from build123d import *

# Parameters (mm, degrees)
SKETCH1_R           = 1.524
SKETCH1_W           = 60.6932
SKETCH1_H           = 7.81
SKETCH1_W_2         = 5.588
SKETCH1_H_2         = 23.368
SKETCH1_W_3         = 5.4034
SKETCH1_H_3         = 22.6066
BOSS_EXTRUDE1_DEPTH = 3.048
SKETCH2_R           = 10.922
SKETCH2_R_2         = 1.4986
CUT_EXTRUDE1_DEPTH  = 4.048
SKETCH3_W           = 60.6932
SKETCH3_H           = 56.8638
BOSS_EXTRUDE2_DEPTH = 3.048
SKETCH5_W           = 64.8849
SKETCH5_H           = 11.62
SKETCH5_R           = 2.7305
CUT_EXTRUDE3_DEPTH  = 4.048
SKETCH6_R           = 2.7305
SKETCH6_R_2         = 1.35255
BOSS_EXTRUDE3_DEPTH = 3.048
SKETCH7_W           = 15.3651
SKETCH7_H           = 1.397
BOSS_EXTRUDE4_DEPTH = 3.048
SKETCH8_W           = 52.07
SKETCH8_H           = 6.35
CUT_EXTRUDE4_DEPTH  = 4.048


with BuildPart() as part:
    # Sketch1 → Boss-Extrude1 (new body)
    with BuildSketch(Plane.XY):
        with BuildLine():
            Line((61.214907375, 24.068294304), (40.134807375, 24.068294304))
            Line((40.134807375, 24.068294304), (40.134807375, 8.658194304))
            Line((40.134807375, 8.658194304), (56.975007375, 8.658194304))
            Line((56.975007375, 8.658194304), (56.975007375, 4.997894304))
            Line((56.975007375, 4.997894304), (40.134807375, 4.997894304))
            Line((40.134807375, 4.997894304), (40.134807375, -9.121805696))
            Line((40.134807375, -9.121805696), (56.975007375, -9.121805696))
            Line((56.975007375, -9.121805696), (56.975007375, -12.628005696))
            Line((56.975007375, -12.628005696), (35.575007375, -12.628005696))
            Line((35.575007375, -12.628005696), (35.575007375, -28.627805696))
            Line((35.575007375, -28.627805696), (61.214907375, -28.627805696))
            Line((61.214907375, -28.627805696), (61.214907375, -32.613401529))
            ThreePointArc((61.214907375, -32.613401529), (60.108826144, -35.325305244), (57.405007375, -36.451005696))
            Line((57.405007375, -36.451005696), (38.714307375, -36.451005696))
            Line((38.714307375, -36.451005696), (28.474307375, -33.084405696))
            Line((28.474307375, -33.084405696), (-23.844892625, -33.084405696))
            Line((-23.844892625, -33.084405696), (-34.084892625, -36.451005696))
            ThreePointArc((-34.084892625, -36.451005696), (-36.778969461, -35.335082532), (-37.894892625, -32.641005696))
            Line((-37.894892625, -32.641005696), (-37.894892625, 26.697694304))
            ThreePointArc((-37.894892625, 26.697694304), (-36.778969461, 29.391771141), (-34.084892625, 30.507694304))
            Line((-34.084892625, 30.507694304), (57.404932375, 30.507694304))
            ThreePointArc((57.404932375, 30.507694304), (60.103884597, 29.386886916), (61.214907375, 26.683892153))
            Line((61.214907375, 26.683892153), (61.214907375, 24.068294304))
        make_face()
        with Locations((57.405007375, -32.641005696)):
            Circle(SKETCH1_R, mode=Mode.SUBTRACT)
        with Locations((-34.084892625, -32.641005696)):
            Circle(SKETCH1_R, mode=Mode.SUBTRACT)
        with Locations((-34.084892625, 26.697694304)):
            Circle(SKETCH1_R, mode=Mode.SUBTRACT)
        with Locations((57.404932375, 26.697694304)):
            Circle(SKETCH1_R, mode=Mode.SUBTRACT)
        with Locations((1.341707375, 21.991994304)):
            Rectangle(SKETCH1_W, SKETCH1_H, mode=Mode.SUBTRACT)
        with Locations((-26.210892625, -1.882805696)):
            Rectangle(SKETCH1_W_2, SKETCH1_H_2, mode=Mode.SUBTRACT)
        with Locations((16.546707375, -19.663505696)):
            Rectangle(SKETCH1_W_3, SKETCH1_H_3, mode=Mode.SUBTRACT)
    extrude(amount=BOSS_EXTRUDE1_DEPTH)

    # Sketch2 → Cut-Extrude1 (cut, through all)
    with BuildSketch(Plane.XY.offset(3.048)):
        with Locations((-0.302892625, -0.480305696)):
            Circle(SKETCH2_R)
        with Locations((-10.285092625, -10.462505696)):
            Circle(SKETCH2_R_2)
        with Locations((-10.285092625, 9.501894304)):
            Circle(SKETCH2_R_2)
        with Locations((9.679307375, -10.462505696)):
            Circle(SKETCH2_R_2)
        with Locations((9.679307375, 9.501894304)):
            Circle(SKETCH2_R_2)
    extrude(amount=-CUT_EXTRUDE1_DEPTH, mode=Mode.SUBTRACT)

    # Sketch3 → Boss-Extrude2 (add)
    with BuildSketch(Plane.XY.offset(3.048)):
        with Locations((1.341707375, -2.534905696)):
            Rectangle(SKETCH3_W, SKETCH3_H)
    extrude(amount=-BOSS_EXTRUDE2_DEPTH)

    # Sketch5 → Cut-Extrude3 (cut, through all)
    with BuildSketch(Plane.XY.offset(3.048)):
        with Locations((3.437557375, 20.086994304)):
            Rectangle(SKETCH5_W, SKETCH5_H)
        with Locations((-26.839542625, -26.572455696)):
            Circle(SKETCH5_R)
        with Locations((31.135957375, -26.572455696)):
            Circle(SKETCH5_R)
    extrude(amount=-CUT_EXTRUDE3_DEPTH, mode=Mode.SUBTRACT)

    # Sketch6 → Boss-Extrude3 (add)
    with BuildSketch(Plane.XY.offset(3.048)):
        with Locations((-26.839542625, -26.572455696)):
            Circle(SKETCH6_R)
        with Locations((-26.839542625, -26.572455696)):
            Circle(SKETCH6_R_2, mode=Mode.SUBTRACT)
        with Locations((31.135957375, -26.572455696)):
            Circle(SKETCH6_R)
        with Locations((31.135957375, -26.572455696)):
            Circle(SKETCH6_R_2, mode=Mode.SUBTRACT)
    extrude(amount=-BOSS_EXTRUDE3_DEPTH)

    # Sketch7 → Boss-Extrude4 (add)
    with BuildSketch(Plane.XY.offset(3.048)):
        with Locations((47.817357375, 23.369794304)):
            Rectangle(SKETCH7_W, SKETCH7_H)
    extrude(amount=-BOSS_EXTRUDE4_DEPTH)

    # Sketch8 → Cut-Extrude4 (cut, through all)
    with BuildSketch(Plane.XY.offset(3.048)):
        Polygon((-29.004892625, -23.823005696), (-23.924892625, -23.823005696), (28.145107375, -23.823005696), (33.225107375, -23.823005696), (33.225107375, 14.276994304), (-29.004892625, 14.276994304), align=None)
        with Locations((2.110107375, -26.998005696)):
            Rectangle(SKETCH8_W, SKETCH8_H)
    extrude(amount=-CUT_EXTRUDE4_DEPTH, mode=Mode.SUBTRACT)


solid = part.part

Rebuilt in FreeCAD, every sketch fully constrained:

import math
import FreeCAD as App
import Part
import Sketcher
from FreeCAD import Vector
Q = App.Units.Quantity

doc = App.newDocument("Part")
body = doc.addObject("PartDesign::Body", "Body")

sketch1 = body.newObject("Sketcher::SketchObject", "Sketch")
sketch1.AttachmentSupport = (doc.getObject("XY_Plane"), [""])
sketch1.MapMode = "FlatFace"
sketch1.addGeometry(Part.LineSegment(Vector(40.134807, 24.068294, 0), Vector(61.214907, 24.068294, 0)), False)
sketch1.addGeometry(Part.LineSegment(Vector(61.214907, 24.068294, 0), Vector(61.214907, 26.683892, 0)), False)
sketch1.addGeometry(Part.ArcOfCircle(Part.Circle(Vector(57.404932, 26.697694, 0), Vector(0, 0, 1), 3.81), math.radians(-0.207561), math.radians(90)), False)
sketch1.addGeometry(Part.LineSegment(Vector(57.404932, 30.507694, 0), Vector(-34.084893, 30.507694, 0)), False)
sketch1.addGeometry(Part.ArcOfCircle(Part.Circle(Vector(-34.084893, 26.697694, 0), Vector(0, 0, 1), 3.81), math.radians(90), math.radians(180)), False)
sketch1.addGeometry(Part.LineSegment(Vector(-37.894893, 26.697694, 0), Vector(-37.894893, -32.641006, 0)), False)
sketch1.addGeometry(Part.ArcOfCircle(Part.Circle(Vector(-34.084893, -32.641006, 0), Vector(0, 0, 1), 3.81), math.radians(-180), math.radians(-90)), False)
sketch1.addGeometry(Part.LineSegment(Vector(-34.084893, -36.451006, 0), Vector(-23.844893, -33.084406, 0)), False)
sketch1.addGeometry(Part.LineSegment(Vector(-23.844893, -33.084406, 0), Vector(28.474307, -33.084406, 0)), False)
sketch1.addGeometry(Part.LineSegment(Vector(28.474307, -33.084406, 0), Vector(38.714307, -36.451006, 0)), False)
sketch1.addGeometry(Part.LineSegment(Vector(38.714307, -36.451006, 0), Vector(57.405007, -36.451006, 0)), False)
sketch1.addGeometry(Part.ArcOfCircle(Part.Circle(Vector(57.405007, -32.641006, 0), Vector(0, 0, 1), 3.81), math.radians(-90), math.radians(0.415122)), False)
sketch1.addGeometry(Part.LineSegment(Vector(61.214907, -32.613402, 0), Vector(61.214907, -28.627806, 0)), False)
sketch1.addGeometry(Part.LineSegment(Vector(61.214907, -28.627806, 0), Vector(35.575007, -28.627806, 0)), False)
sketch1.addGeometry(Part.LineSegment(Vector(35.575007, -28.627806, 0), Vector(35.575007, -12.628006, 0)), False)
sketch1.addGeometry(Part.LineSegment(Vector(35.575007, -12.628006, 0), Vector(56.975007, -12.628006, 0)), False)
sketch1.addGeometry(Part.LineSegment(Vector(56.975007, -12.628006, 0), Vector(56.975007, -9.121806, 0)), False)
sketch1.addGeometry(Part.LineSegment(Vector(56.975007, -9.121806, 0), Vector(40.134807, -9.121806, 0)), False)
sketch1.addGeometry(Part.LineSegment(Vector(40.134807, -9.121806, 0), Vector(40.134807, 4.997894, 0)), False)
sketch1.addGeometry(Part.LineSegment(Vector(40.134807, 4.997894, 0), Vector(56.975007, 4.997894, 0)), False)
sketch1.addGeometry(Part.LineSegment(Vector(56.975007, 4.997894, 0), Vector(56.975007, 8.658194, 0)), False)
sketch1.addGeometry(Part.LineSegment(Vector(56.975007, 8.658194, 0), Vector(40.134807, 8.658194, 0)), False)
sketch1.addGeometry(Part.LineSegment(Vector(40.134807, 8.658194, 0), Vector(40.134807, 24.068294, 0)), False)
sketch1.addGeometry(Part.Circle(Vector(57.405007, -32.641006, 0), Vector(0, 0, 1), 1.524), False)
sketch1.addGeometry(Part.LineSegment(Vector(13.845007, -30.966806, 0), Vector(13.845007, -8.360206, 0)), False)
sketch1.addGeometry(Part.LineSegment(Vector(13.845007, -8.360206, 0), Vector(19.248407, -8.360206, 0)), False)
sketch1.addGeometry(Part.LineSegment(Vector(19.248407, -8.360206, 0), Vector(19.248407, -30.966806, 0)), False)
sketch1.addGeometry(Part.LineSegment(Vector(19.248407, -30.966806, 0), Vector(13.845007, -30.966806, 0)), False)
sketch1.addGeometry(Part.Circle(Vector(-34.084893, -32.641006, 0), Vector(0, 0, 1), 1.524), False)
sketch1.addGeometry(Part.Circle(Vector(57.404932, 26.697694, 0), Vector(0, 0, 1), 1.524), False)
sketch1.addGeometry(Part.LineSegment(Vector(-29.004893, -13.566806, 0), Vector(-29.004893, 9.801194, 0)), False)
sketch1.addGeometry(Part.LineSegment(Vector(-29.004893, 9.801194, 0), Vector(-23.416893, 9.801194, 0)), False)
sketch1.addGeometry(Part.LineSegment(Vector(-23.416893, 9.801194, 0), Vector(-23.416893, -13.566806, 0)), False)
sketch1.addGeometry(Part.LineSegment(Vector(-23.416893, -13.566806, 0), Vector(-29.004893, -13.566806, 0)), False)
sketch1.addGeometry(Part.LineSegment(Vector(-29.004893, 18.086994, 0), Vector(-29.004893, 25.896994, 0)), False)
sketch1.addGeometry(Part.LineSegment(Vector(-29.004893, 25.896994, 0), Vector(31.688307, 25.896994, 0)), False)
sketch1.addGeometry(Part.LineSegment(Vector(31.688307, 25.896994, 0), Vector(31.688307, 18.086994, 0)), False)
sketch1.addGeometry(Part.LineSegment(Vector(31.688307, 18.086994, 0), Vector(-29.004893, 18.086994, 0)), False)
sketch1.addGeometry(Part.Circle(Vector(-34.084893, 26.697694, 0), Vector(0, 0, 1), 1.524), False)
sketch1.addConstraint(Sketcher.Constraint("Coincident", 0, 2, 1, 1))
sketch1.addConstraint(Sketcher.Constraint("Coincident", 1, 2, 2, 1))
sketch1.addConstraint(Sketcher.Constraint("Tangent", 2, 2, 3, 1))
sketch1.addConstraint(Sketcher.Constraint("Tangent", 3, 2, 4, 1))
sketch1.addConstraint(Sketcher.Constraint("Tangent", 4, 2, 5, 1))
sketch1.addConstraint(Sketcher.Constraint("Tangent", 5, 2, 6, 1))
sketch1.addConstraint(Sketcher.Constraint("Coincident", 6, 2, 7, 1))
sketch1.addConstraint(Sketcher.Constraint("Coincident", 7, 2, 8, 1))
sketch1.addConstraint(Sketcher.Constraint("Coincident", 8, 2, 9, 1))
sketch1.addConstraint(Sketcher.Constraint("Coincident", 9, 2, 10, 1))
sketch1.addConstraint(Sketcher.Constraint("Tangent", 10, 2, 11, 1))
sketch1.addConstraint(Sketcher.Constraint("Coincident", 11, 2, 12, 1))
sketch1.addConstraint(Sketcher.Constraint("Coincident", 12, 2, 13, 1))
sketch1.addConstraint(Sketcher.Constraint("Coincident", 13, 2, 14, 1))
sketch1.addConstraint(Sketcher.Constraint("Coincident", 14, 2, 15, 1))
sketch1.addConstraint(Sketcher.Constraint("Coincident", 15, 2, 16, 1))
sketch1.addConstraint(Sketcher.Constraint("Coincident", 16, 2, 17, 1))
sketch1.addConstraint(Sketcher.Constraint("Coincident", 17, 2, 18, 1))
sketch1.addConstraint(Sketcher.Constraint("Coincident", 18, 2, 19, 1))
sketch1.addConstraint(Sketcher.Constraint("Coincident", 19, 2, 20, 1))
sketch1.addConstraint(Sketcher.Constraint("Coincident", 20, 2, 21, 1))
sketch1.addConstraint(Sketcher.Constraint("Coincident", 21, 2, 22, 1))
sketch1.addConstraint(Sketcher.Constraint("Coincident", 22, 2, 0, 1))
sketch1.addConstraint(Sketcher.Constraint("Coincident", 24, 2, 25, 1))
sketch1.addConstraint(Sketcher.Constraint("Coincident", 25, 2, 26, 1))
sketch1.addConstraint(Sketcher.Constraint("Coincident", 26, 2, 27, 1))
sketch1.addConstraint(Sketcher.Constraint("Coincident", 27, 2, 24, 1))
sketch1.addConstraint(Sketcher.Constraint("Coincident", 30, 2, 31, 1))
sketch1.addConstraint(Sketcher.Constraint("Coincident", 31, 2, 32, 1))
sketch1.addConstraint(Sketcher.Constraint("Coincident", 32, 2, 33, 1))
sketch1.addConstraint(Sketcher.Constraint("Coincident", 33, 2, 30, 1))
sketch1.addConstraint(Sketcher.Constraint("Coincident", 34, 2, 35, 1))
sketch1.addConstraint(Sketcher.Constraint("Coincident", 35, 2, 36, 1))
sketch1.addConstraint(Sketcher.Constraint("Coincident", 36, 2, 37, 1))
sketch1.addConstraint(Sketcher.Constraint("Coincident", 37, 2, 34, 1))
sketch1.addConstraint(Sketcher.Constraint("Horizontal", 0))
sketch1.addConstraint(Sketcher.Constraint("Vertical", 1))
sketch1.addConstraint(Sketcher.Constraint("Horizontal", 3))
sketch1.addConstraint(Sketcher.Constraint("Vertical", 5))
sketch1.addConstraint(Sketcher.Constraint("Horizontal", 8))
sketch1.addConstraint(Sketcher.Constraint("Horizontal", 10))
sketch1.addConstraint(Sketcher.Constraint("Vertical", 12))
sketch1.addConstraint(Sketcher.Constraint("Horizontal", 13))
sketch1.addConstraint(Sketcher.Constraint("Vertical", 14))
sketch1.addConstraint(Sketcher.Constraint("Horizontal", 15))
sketch1.addConstraint(Sketcher.Constraint("Vertical", 16))
sketch1.addConstraint(Sketcher.Constraint("Horizontal", 17))
sketch1.addConstraint(Sketcher.Constraint("Vertical", 18))
sketch1.addConstraint(Sketcher.Constraint("Horizontal", 19))
sketch1.addConstraint(Sketcher.Constraint("Vertical", 20))
sketch1.addConstraint(Sketcher.Constraint("Horizontal", 21))
sketch1.addConstraint(Sketcher.Constraint("Vertical", 22))
sketch1.addConstraint(Sketcher.Constraint("Vertical", 24))
sketch1.addConstraint(Sketcher.Constraint("Horizontal", 25))
sketch1.addConstraint(Sketcher.Constraint("Vertical", 26))
sketch1.addConstraint(Sketcher.Constraint("Horizontal", 27))
sketch1.addConstraint(Sketcher.Constraint("Vertical", 30))
sketch1.addConstraint(Sketcher.Constraint("Horizontal", 31))
sketch1.addConstraint(Sketcher.Constraint("Vertical", 32))
sketch1.addConstraint(Sketcher.Constraint("Horizontal", 33))
sketch1.addConstraint(Sketcher.Constraint("Vertical", 34))
sketch1.addConstraint(Sketcher.Constraint("Horizontal", 35))
sketch1.addConstraint(Sketcher.Constraint("Vertical", 36))
sketch1.addConstraint(Sketcher.Constraint("Horizontal", 37))
sketch1.addConstraint(Sketcher.Constraint("Coincident", 23, 3, 11, 3))
sketch1.addConstraint(Sketcher.Constraint("Coincident", 28, 3, 6, 3))
sketch1.addConstraint(Sketcher.Constraint("Coincident", 29, 3, 2, 3))
sketch1.addConstraint(Sketcher.Constraint("Coincident", 38, 3, 4, 3))
sketch1.addConstraint(Sketcher.Constraint("Equal", 2, 4))
sketch1.addConstraint(Sketcher.Constraint("Equal", 4, 6))
sketch1.addConstraint(Sketcher.Constraint("Equal", 6, 11))
sketch1.addConstraint(Sketcher.Constraint("Equal", 23, 28))
sketch1.addConstraint(Sketcher.Constraint("Equal", 28, 29))
sketch1.addConstraint(Sketcher.Constraint("Equal", 29, 38))
sketch1.addConstraint(Sketcher.Constraint("Horizontal", 6, 3, 11, 3))
sketch1.addConstraint(Sketcher.Constraint("Vertical", 3, 2, 6, 2))
sketch1.addConstraint(Sketcher.Constraint("Vertical", 1, 2, 11, 2))
sketch1.addConstraint(Sketcher.Constraint("Vertical", 16, 2, 19, 2))
sketch1.addConstraint(Sketcher.Constraint("Vertical", 18, 2, 21, 2))
sketch1.addConstraint(Sketcher.Constraint("Vertical", 33, 2, 34, 2))
sketch1.addConstraint(Sketcher.Constraint("Equal", 7, 9))
sketch1.addConstraint(Sketcher.Constraint("Diameter", 23, Q("0.12 in")))
sketch1.addConstraint(Sketcher.Constraint("Radius", 2, Q("0.15 in")))
sketch1.addConstraint(Sketcher.Constraint("DistanceX", 31, 1, 31, 2, Q("0.22 in")))
sketch1.addConstraint(Sketcher.Constraint("DistanceY", 30, 1, 30, 2, Q("0.92 in")))
sketch1.addConstraint(Sketcher.Constraint("DistanceY", 16, 2, 20, 2, Q("0.7 in")))
sketch1.addConstraint(Sketcher.Constraint("DistanceX", 38, 3, 30, 2, Q("0.2 in")))
sketch1.addConstraint(Sketcher.Constraint("DistanceX", 17, 2, 17, 1, Q("0.663 in")))
sketch1.addConstraint(Sketcher.Constraint("DistanceX", 8, 2, 11, 2, Q("1.289 in")))
sketch1.addConstraint(Sketcher.Constraint("DistanceY", 11, 3, 12, 2, Q("0.158 in")))
sketch1.addConstraint(Sketcher.Constraint("DistanceX", 0, 1, 0, 2, 21.0801))
sketch1.addConstraint(Sketcher.Constraint("DistanceX", 8, 1, 8, 2, 52.3192))
sketch1.addConstraint(Sketcher.Constraint("DistanceX", 10, 1, 10, 2, 18.6907))
sketch1.addConstraint(Sketcher.Constraint("DistanceX", 13, 2, 13, 1, 25.6399))
sketch1.addConstraint(Sketcher.Constraint("DistanceX", 25, 1, 25, 2, 5.4034))
sketch1.addConstraint(Sketcher.Constraint("DistanceX", 35, 1, 35, 2, 60.6932))
sketch1.addConstraint(Sketcher.Constraint("DistanceY", 5, 2, 5, 1, 59.3387))
sketch1.addConstraint(Sketcher.Constraint("DistanceY", 14, 1, 14, 2, 15.9998))
sketch1.addConstraint(Sketcher.Constraint("DistanceY", 16, 1, 16, 2, 3.5062))
sketch1.addConstraint(Sketcher.Constraint("DistanceY", 18, 1, 18, 2, 14.1197))
sketch1.addConstraint(Sketcher.Constraint("DistanceY", 22, 1, 22, 2, 15.4101))
sketch1.addConstraint(Sketcher.Constraint("DistanceY", 24, 1, 24, 2, 22.6066))
sketch1.addConstraint(Sketcher.Constraint("DistanceY", 34, 1, 34, 2, 7.81))
sketch1.addConstraint(Sketcher.Constraint("DistanceY", 11, 2, -1, 1, 32.613402))
sketch1.addConstraint(Sketcher.Constraint("DistanceY", 7, 2, 6, 3, 0.4434))
sketch1.addConstraint(Sketcher.Constraint("DistanceX", 24, 2, 14, 2, 21.73))
sketch1.addConstraint(Sketcher.Constraint("DistanceY", 14, 2, 24, 2, 4.2678))
sketch1.addConstraint(Sketcher.Constraint("DistanceY", 30, 2, 38, 3, 16.8965))
sketch1.addConstraint(Sketcher.Constraint("DistanceY", 34, 2, 38, 3, 0.8007))
sketch1.addConstraint(Sketcher.Constraint("DistanceX", 3, 2, 3, 1, 91.489825))
sketch1.addConstraint(Sketcher.Constraint("DistanceY", 1, 1, 1, 2, 2.615598))
sketch1.addConstraint(Sketcher.Constraint("DistanceX", -1, 1, 2, 3, 57.404932))
pad1 = body.newObject("PartDesign::Pad", "Pad")
pad1.Profile = sketch1
pad1.Length = Q("0.12 in")

sketch2 = body.newObject("Sketcher::SketchObject", "Sketch001")
sketch2.AttachmentSupport = (doc.getObject("XY_Plane"), [""])
sketch2.MapMode = "FlatFace"
sketch2.AttachmentOffset = App.Placement(Vector(0, 0, 0.12 * 25.4), App.Rotation())
sketch2.addGeometry(Part.Circle(Vector(-0.3, -0.5, 0), Vector(0, 0, 1), 10.9), False)
sketch2.addGeometry(Part.Circle(Vector(-10.3, -10.5, 0), Vector(0, 0, 1), 1.5), False)
sketch2.addGeometry(Part.Circle(Vector(-10.3, 9.5, 0), Vector(0, 0, 1), 1.5), False)
sketch2.addGeometry(Part.Circle(Vector(9.7, -10.5, 0), Vector(0, 0, 1), 1.5), False)
sketch2.addGeometry(Part.Circle(Vector(9.7, 9.5, 0), Vector(0, 0, 1), 1.5), False)
sketch2.addConstraint(Sketcher.Constraint("Equal", 1, 2))
sketch2.addConstraint(Sketcher.Constraint("Equal", 2, 3))
sketch2.addConstraint(Sketcher.Constraint("Equal", 3, 4))
sketch2.addConstraint(Sketcher.Constraint("Horizontal", 1, 3, 3, 3))
sketch2.addConstraint(Sketcher.Constraint("Horizontal", 2, 3, 4, 3))
sketch2.addConstraint(Sketcher.Constraint("Vertical", 1, 3, 2, 3))
sketch2.addConstraint(Sketcher.Constraint("Vertical", 3, 3, 4, 3))
sketch2.addConstraint(Sketcher.Constraint("Diameter", 0, Q("0.86 in")))
sketch2.addConstraint(Sketcher.Constraint("Diameter", 1, Q("0.118 in")))
sketch2.addConstraint(Sketcher.Constraint("DistanceX", 1, 3, 0, 3, Q("0.393 in")))
sketch2.addConstraint(Sketcher.Constraint("DistanceY", 1, 3, 0, 3, Q("0.393 in")))
sketch2.addConstraint(Sketcher.Constraint("DistanceY", 0, 3, 2, 3, Q("0.393 in")))
sketch2.addConstraint(Sketcher.Constraint("DistanceX", 0, 3, 3, 3, Q("0.393 in")))
sketch2.addConstraint(Sketcher.Constraint("DistanceX", 0, 3, -1, 1, 0.302893))
sketch2.addConstraint(Sketcher.Constraint("DistanceY", 0, 3, -1, 1, 0.480306))
pocket1 = body.newObject("PartDesign::Pocket", "Pocket")
pocket1.Profile = sketch2
pocket1.Type = "ThroughAll"

sketch3 = body.newObject("Sketcher::SketchObject", "Sketch002")
sketch3.AttachmentSupport = (doc.getObject("XY_Plane"), [""])
sketch3.MapMode = "FlatFace"
sketch3.AttachmentOffset = App.Placement(Vector(0, 0, 0.12 * 25.4), App.Rotation())
sketch3.addGeometry(Part.LineSegment(Vector(-29, 26, 0), Vector(-29, -31, 0)), False)
sketch3.addGeometry(Part.LineSegment(Vector(-29, -31, 0), Vector(32, -31, 0)), False)
sketch3.addGeometry(Part.LineSegment(Vector(32, -31, 0), Vector(32, 26, 0)), False)
sketch3.addGeometry(Part.LineSegment(Vector(32, 26, 0), Vector(-29, 26, 0)), False)
sketch3.addConstraint(Sketcher.Constraint("Coincident", 0, 2, 1, 1))
sketch3.addConstraint(Sketcher.Constraint("Coincident", 1, 2, 2, 1))
sketch3.addConstraint(Sketcher.Constraint("Coincident", 2, 2, 3, 1))
sketch3.addConstraint(Sketcher.Constraint("Coincident", 3, 2, 0, 1))
sketch3.addConstraint(Sketcher.Constraint("Vertical", 0))
sketch3.addConstraint(Sketcher.Constraint("Horizontal", 1))
sketch3.addConstraint(Sketcher.Constraint("Vertical", 2))
sketch3.addConstraint(Sketcher.Constraint("Horizontal", 3))
sketch3.addConstraint(Sketcher.Constraint("DistanceX", 1, 1, 1, 2, 60.6932))
sketch3.addConstraint(Sketcher.Constraint("DistanceY", 0, 2, 0, 1, 56.8638))
sketch3.addConstraint(Sketcher.Constraint("DistanceX", 0, 2, -1, 1, 29.004893))
sketch3.addConstraint(Sketcher.Constraint("DistanceY", 0, 2, -1, 1, 30.966806))
pad2 = body.newObject("PartDesign::Pad", "Pad001")
pad2.Profile = sketch3
pad2.Length = Q("0.12 in")
pad2.Reversed = True

sketch4 = body.newObject("Sketcher::SketchObject", "Sketch003")
sketch4.AttachmentSupport = (doc.getObject("XY_Plane"), [""])
sketch4.MapMode = "FlatFace"
sketch4.AttachmentOffset = App.Placement(Vector(0, 0, 0.12 * 25.4), App.Rotation())
sketch4.addGeometry(Part.LineSegment(Vector(-29, 25.9, 0), Vector(-29, 14.3, 0)), False)
sketch4.addGeometry(Part.LineSegment(Vector(-29, 14.3, 0), Vector(35.9, 14.3, 0)), False)
sketch4.addGeometry(Part.LineSegment(Vector(35.9, 14.3, 0), Vector(35.9, 25.9, 0)), False)
sketch4.addGeometry(Part.LineSegment(Vector(35.9, 25.9, 0), Vector(-29, 25.9, 0)), False)
sketch4.addGeometry(Part.Circle(Vector(-26.8, -26.6, 0), Vector(0, 0, 1), 2.7), False)
sketch4.addGeometry(Part.Circle(Vector(31.1, -26.6, 0), Vector(0, 0, 1), 2.7), False)
sketch4.addConstraint(Sketcher.Constraint("Coincident", 0, 2, 1, 1))
sketch4.addConstraint(Sketcher.Constraint("Coincident", 1, 2, 2, 1))
sketch4.addConstraint(Sketcher.Constraint("Coincident", 2, 2, 3, 1))
sketch4.addConstraint(Sketcher.Constraint("Coincident", 3, 2, 0, 1))
sketch4.addConstraint(Sketcher.Constraint("Vertical", 0))
sketch4.addConstraint(Sketcher.Constraint("Horizontal", 1))
sketch4.addConstraint(Sketcher.Constraint("Vertical", 2))
sketch4.addConstraint(Sketcher.Constraint("Horizontal", 3))
sketch4.addConstraint(Sketcher.Constraint("Equal", 4, 5))
sketch4.addConstraint(Sketcher.Constraint("Horizontal", 4, 3, 5, 3))
sketch4.addConstraint(Sketcher.Constraint("Diameter", 4, Q("0.215 in")))
sketch4.addConstraint(Sketcher.Constraint("DistanceX", 1, 1, 1, 2, 64.8849))
sketch4.addConstraint(Sketcher.Constraint("DistanceY", 0, 2, 0, 1, 11.62))
sketch4.addConstraint(Sketcher.Constraint("DistanceX", 4, 3, 5, 3, Q("2.2825 in")))
sketch4.addConstraint(Sketcher.Constraint("DistanceX", 0, 2, 4, 3, 2.16535))
sketch4.addConstraint(Sketcher.Constraint("DistanceY", 4, 3, 0, 2, 40.84945))
sketch4.addConstraint(Sketcher.Constraint("DistanceX", 4, 3, -1, 1, 26.839543))
sketch4.addConstraint(Sketcher.Constraint("DistanceY", 4, 3, -1, 1, 26.572456))
pocket2 = body.newObject("PartDesign::Pocket", "Pocket001")
pocket2.Profile = sketch4
pocket2.Type = "ThroughAll"

sketch5 = body.newObject("Sketcher::SketchObject", "Sketch004")
sketch5.AttachmentSupport = (doc.getObject("XY_Plane"), [""])
sketch5.MapMode = "FlatFace"
sketch5.AttachmentOffset = App.Placement(Vector(0, 0, 0.12 * 25.4), App.Rotation())
sketch5.addGeometry(Part.Circle(Vector(-26.8, -26.6, 0), Vector(0, 0, 1), 2.7), False)
sketch5.addGeometry(Part.Circle(Vector(-26.8, -26.6, 0), Vector(0, 0, 1), 1.4), False)
sketch5.addGeometry(Part.Circle(Vector(31.1, -26.6, 0), Vector(0, 0, 1), 2.7), False)
sketch5.addGeometry(Part.Circle(Vector(31.1, -26.6, 0), Vector(0, 0, 1), 1.4), False)
sketch5.addConstraint(Sketcher.Constraint("Coincident", 1, 3, 0, 3))
sketch5.addConstraint(Sketcher.Constraint("Coincident", 3, 3, 2, 3))
sketch5.addConstraint(Sketcher.Constraint("Equal", 0, 2))
sketch5.addConstraint(Sketcher.Constraint("Equal", 1, 3))
sketch5.addConstraint(Sketcher.Constraint("Horizontal", 1, 3, 2, 3))
sketch5.addConstraint(Sketcher.Constraint("Diameter", 0, Q("0.215 in")))
sketch5.addConstraint(Sketcher.Constraint("Diameter", 1, Q("0.1065 in")))
sketch5.addConstraint(Sketcher.Constraint("DistanceX", 0, 3, 2, 3, Q("2.2825 in")))
sketch5.addConstraint(Sketcher.Constraint("DistanceX", 0, 3, -1, 1, 26.839543))
sketch5.addConstraint(Sketcher.Constraint("DistanceY", 0, 3, -1, 1, 26.572456))
pad3 = body.newObject("PartDesign::Pad", "Pad002")
pad3.Profile = sketch5
pad3.Length = Q("0.12 in")
pad3.Reversed = True

sketch6 = body.newObject("Sketcher::SketchObject", "Sketch005")
sketch6.AttachmentSupport = (doc.getObject("XY_Plane"), [""])
sketch6.MapMode = "FlatFace"
sketch6.AttachmentOffset = App.Placement(Vector(0, 0, 0.12 * 25.4), App.Rotation())
sketch6.addGeometry(Part.LineSegment(Vector(40.1, 24.1, 0), Vector(40.1, 22.7, 0)), False)
sketch6.addGeometry(Part.LineSegment(Vector(40.1, 22.7, 0), Vector(55.5, 22.7, 0)), False)
sketch6.addGeometry(Part.LineSegment(Vector(55.5, 22.7, 0), Vector(55.5, 24.1, 0)), False)
sketch6.addGeometry(Part.LineSegment(Vector(55.5, 24.1, 0), Vector(40.1, 24.1, 0)), False)
sketch6.addConstraint(Sketcher.Constraint("Coincident", 0, 2, 1, 1))
sketch6.addConstraint(Sketcher.Constraint("Coincident", 1, 2, 2, 1))
sketch6.addConstraint(Sketcher.Constraint("Coincident", 2, 2, 3, 1))
sketch6.addConstraint(Sketcher.Constraint("Coincident", 3, 2, 0, 1))
sketch6.addConstraint(Sketcher.Constraint("Vertical", 0))
sketch6.addConstraint(Sketcher.Constraint("Horizontal", 1))
sketch6.addConstraint(Sketcher.Constraint("Vertical", 2))
sketch6.addConstraint(Sketcher.Constraint("Horizontal", 3))
sketch6.addConstraint(Sketcher.Constraint("DistanceY", 0, 2, 0, 1, Q("0.055 in")))
sketch6.addConstraint(Sketcher.Constraint("DistanceX", 1, 1, 1, 2, 15.3651))
sketch6.addConstraint(Sketcher.Constraint("DistanceX", -1, 1, 0, 2, 40.134807))
sketch6.addConstraint(Sketcher.Constraint("DistanceY", -1, 1, 0, 2, 22.671294))
pad4 = body.newObject("PartDesign::Pad", "Pad003")
pad4.Profile = sketch6
pad4.Length = Q("0.12 in")
pad4.Reversed = True

sketch7 = body.newObject("Sketcher::SketchObject", "Sketch006")
sketch7.AttachmentSupport = (doc.getObject("XY_Plane"), [""])
sketch7.MapMode = "FlatFace"
sketch7.AttachmentOffset = App.Placement(Vector(0, 0, 0.12 * 25.4), App.Rotation())
sketch7.addGeometry(Part.LineSegment(Vector(-29, -24, 0), Vector(-24, -24, 0)), False)
sketch7.addGeometry(Part.LineSegment(Vector(-24, -24, 0), Vector(-24, -30, 0)), False)
sketch7.addGeometry(Part.LineSegment(Vector(-24, -30, 0), Vector(28, -30, 0)), False)
sketch7.addGeometry(Part.LineSegment(Vector(28, -30, 0), Vector(28, -24, 0)), False)
sketch7.addGeometry(Part.LineSegment(Vector(28, -24, 0), Vector(33, -24, 0)), False)
sketch7.addGeometry(Part.LineSegment(Vector(33, -24, 0), Vector(33, 14, 0)), False)
sketch7.addGeometry(Part.LineSegment(Vector(33, 14, 0), Vector(-29, 14, 0)), False)
sketch7.addGeometry(Part.LineSegment(Vector(-29, 14, 0), Vector(-29, -24, 0)), False)
sketch7.addConstraint(Sketcher.Constraint("Coincident", 0, 2, 1, 1))
sketch7.addConstraint(Sketcher.Constraint("Coincident", 1, 2, 2, 1))
sketch7.addConstraint(Sketcher.Constraint("Coincident", 2, 2, 3, 1))
sketch7.addConstraint(Sketcher.Constraint("Coincident", 3, 2, 4, 1))
sketch7.addConstraint(Sketcher.Constraint("Coincident", 4, 2, 5, 1))
sketch7.addConstraint(Sketcher.Constraint("Coincident", 5, 2, 6, 1))
sketch7.addConstraint(Sketcher.Constraint("Coincident", 6, 2, 7, 1))
sketch7.addConstraint(Sketcher.Constraint("Coincident", 7, 2, 0, 1))
sketch7.addConstraint(Sketcher.Constraint("Horizontal", 0))
sketch7.addConstraint(Sketcher.Constraint("Vertical", 1))
sketch7.addConstraint(Sketcher.Constraint("Horizontal", 2))
sketch7.addConstraint(Sketcher.Constraint("Vertical", 3))
sketch7.addConstraint(Sketcher.Constraint("Horizontal", 4))
sketch7.addConstraint(Sketcher.Constraint("Vertical", 5))
sketch7.addConstraint(Sketcher.Constraint("Horizontal", 6))
sketch7.addConstraint(Sketcher.Constraint("Vertical", 7))
sketch7.addConstraint(Sketcher.Constraint("Horizontal", 0, 2, 3, 2))
sketch7.addConstraint(Sketcher.Constraint("Equal", 0, 4))
sketch7.addConstraint(Sketcher.Constraint("DistanceX", 0, 1, 0, 2, Q("0.2 in")))
sketch7.addConstraint(Sketcher.Constraint("DistanceY", 5, 1, 5, 2, Q("1.5 in")))
sketch7.addConstraint(Sketcher.Constraint("DistanceX", 2, 1, 2, 2, Q("2.05 in")))
sketch7.addConstraint(Sketcher.Constraint("DistanceY", 1, 2, 1, 1, Q("0.25 in")))
sketch7.addConstraint(Sketcher.Constraint("DistanceX", 0, 2, -1, 1, 23.924893))
sketch7.addConstraint(Sketcher.Constraint("DistanceY", 0, 2, -1, 1, 23.823006))
pocket3 = body.newObject("PartDesign::Pocket", "Pocket002")
pocket3.Profile = sketch7
pocket3.Type = "ThroughAll"

doc.recompute()
